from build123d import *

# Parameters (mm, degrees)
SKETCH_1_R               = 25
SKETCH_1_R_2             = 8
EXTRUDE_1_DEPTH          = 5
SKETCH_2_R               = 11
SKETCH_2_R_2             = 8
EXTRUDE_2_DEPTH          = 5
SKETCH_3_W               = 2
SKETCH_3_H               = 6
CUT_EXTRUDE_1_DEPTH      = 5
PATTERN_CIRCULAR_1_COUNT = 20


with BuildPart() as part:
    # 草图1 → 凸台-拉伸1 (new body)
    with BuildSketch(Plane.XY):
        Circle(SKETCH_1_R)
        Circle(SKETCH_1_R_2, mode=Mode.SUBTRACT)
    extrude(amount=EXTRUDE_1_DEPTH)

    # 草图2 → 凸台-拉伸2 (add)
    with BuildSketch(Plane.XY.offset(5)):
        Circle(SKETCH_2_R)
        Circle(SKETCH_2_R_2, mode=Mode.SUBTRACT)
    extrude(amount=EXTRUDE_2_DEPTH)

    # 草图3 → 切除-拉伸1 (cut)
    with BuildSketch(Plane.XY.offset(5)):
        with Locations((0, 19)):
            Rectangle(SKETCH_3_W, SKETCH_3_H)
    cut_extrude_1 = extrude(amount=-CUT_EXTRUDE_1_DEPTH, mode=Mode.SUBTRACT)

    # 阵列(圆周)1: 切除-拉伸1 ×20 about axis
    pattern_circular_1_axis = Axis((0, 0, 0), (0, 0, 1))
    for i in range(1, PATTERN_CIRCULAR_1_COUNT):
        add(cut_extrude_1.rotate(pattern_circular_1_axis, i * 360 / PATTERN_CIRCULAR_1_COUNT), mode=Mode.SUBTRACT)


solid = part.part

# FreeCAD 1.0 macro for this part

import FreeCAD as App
import Part
import Sketcher
from FreeCAD import Vector
Q = App.Units.Quantity

doc = App.newDocument("Part")
params = doc.addObject("Spreadsheet::Sheet", "Params")
for row, (alias, value) in enumerate([
    ("sketch1_diameter", "50 mm"),
    ("sketch1_diameter2", "16 mm"),
    ("pad1_length", "5 mm"),
    ("sketch2_diameter", "22 mm"),
    ("sketch2_diameter2", "16 mm"),
    ("pad2_length", "5 mm"),
    ("sketch3_width", "2 mm"),
    ("sketch3_height", "6 mm"),
    ("pocket1_length", "5 mm"),
], start=1):
    params.set(f"A{row}", alias)
    params.set(f"B{row}", "=" + value)
    params.setAlias(f"B{row}", alias)

body = doc.addObject("PartDesign::Body", "Body")

# Sketch on XY plane
sketch1 = body.newObject("Sketcher::SketchObject", "Sketch")
sketch1.AttachmentSupport = (doc.getObject("XY_Plane"), [""])
sketch1.MapMode = "FlatFace"
sketch1.addGeometry(Part.Circle(Vector(0, 0, 0), Vector(0, 0, 1), 25), False)
sketch1.addGeometry(Part.Circle(Vector(0, 0, 0), Vector(0, 0, 1), 8), False)
sketch1.addConstraint(Sketcher.Constraint("Coincident", 0, 3, -1, 1))
sketch1.addConstraint(Sketcher.Constraint("Coincident", 1, 3, -1, 1))
sketch1.addConstraint(Sketcher.Constraint("Diameter", 0, Q("50 mm")))
sketch1.addConstraint(Sketcher.Constraint("Diameter", 1, Q("16 mm")))
sketch1.setExpression("Constraints[2]", "Params.sketch1_diameter")
sketch1.setExpression("Constraints[3]", "Params.sketch1_diameter2")
pad1 = body.newObject("PartDesign::Pad", "Pad")
pad1.Profile = sketch1
pad1.setExpression("Length", "Params.pad1_length")

# Sketch on XY plane
sketch2 = body.newObject("Sketcher::SketchObject", "Sketch001")
sketch2.AttachmentSupport = (doc.getObject("XY_Plane"), [""])
sketch2.MapMode = "FlatFace"
sketch2.AttachmentOffset = App.Placement(Vector(0, 0, 5), App.Rotation())
sketch2.addGeometry(Part.Circle(Vector(0, 0, 0), Vector(0, 0, 1), 11), False)
sketch2.addGeometry(Part.Circle(Vector(0, 0, 0), Vector(0, 0, 1), 8), False)
sketch2.addConstraint(Sketcher.Constraint("Coincident", 0, 3, -1, 1))
sketch2.addConstraint(Sketcher.Constraint("Coincident", 1, 3, -1, 1))
sketch2.addConstraint(Sketcher.Constraint("Diameter", 0, Q("22 mm")))
sketch2.addConstraint(Sketcher.Constraint("Diameter", 1, Q("16 mm")))
sketch2.setExpression("Constraints[2]", "Params.sketch2_diameter")
sketch2.setExpression("Constraints[3]", "Params.sketch2_diameter2")
pad2 = body.newObject("PartDesign::Pad", "Pad001")
pad2.Profile = sketch2
pad2.setExpression("Length", "Params.pad2_length")

# Sketch on XY plane
sketch3 = body.newObject("Sketcher::SketchObject", "Sketch002")
sketch3.AttachmentSupport = (doc.getObject("XY_Plane"), [""])
sketch3.MapMode = "FlatFace"
sketch3.AttachmentOffset = App.Placement(Vector(0, 0, 5), App.Rotation())
sketch3.addGeometry(Part.LineSegment(Vector(-1, 22, 0), Vector(-1, 16, 0)), False)
sketch3.addGeometry(Part.LineSegment(Vector(-1, 16, 0), Vector(1, 16, 0)), False)
sketch3.addGeometry(Part.LineSegment(Vector(1, 16, 0), Vector(1, 22, 0)), False)
sketch3.addGeometry(Part.LineSegment(Vector(1, 22, 0), Vector(-1, 22, 0)), False)
sketch3.addConstraint(Sketcher.Constraint("Coincident", 0, 2, 1, 1))
sketch3.addConstraint(Sketcher.Constraint("Coincident", 1, 2, 2, 1))
sketch3.addConstraint(Sketcher.Constraint("Coincident", 2, 2, 3, 1))
sketch3.addConstraint(Sketcher.Constraint("Coincident", 3, 2, 0, 1))
sketch3.addConstraint(Sketcher.Constraint("Vertical", 0))
sketch3.addConstraint(Sketcher.Constraint("Horizontal", 1))
sketch3.addConstraint(Sketcher.Constraint("Vertical", 2))
sketch3.addConstraint(Sketcher.Constraint("Horizontal", 3))
sketch3.addConstraint(Sketcher.Constraint("DistanceX", 1, 1, 1, 2, Q("2 mm")))
sketch3.addConstraint(Sketcher.Constraint("DistanceY", 0, 2, 0, 1, Q("6 mm")))
sketch3.addConstraint(Sketcher.Constraint("DistanceX", 0, 2, -1, 1, Q("1 mm")))
sketch3.addConstraint(Sketcher.Constraint("DistanceY", -1, 1, 0, 2, Q("16 mm")))
sketch3.setExpression("Constraints[8]", "Params.sketch3_width")
sketch3.setExpression("Constraints[9]", "Params.sketch3_height")
pocket1 = body.newObject("PartDesign::Pocket", "Pocket")
pocket1.Profile = sketch3
pocket1.setExpression("Length", "Params.pocket1_length")
doc.recompute()

polarpattern = body.newObject("PartDesign::PolarPattern", "PolarPattern")
polarpattern.Originals = [pocket1]
polarpattern.Axis = (doc.getObject("Z_Axis"), [""])
polarpattern.Angle = 360
polarpattern.Occurrences = 20
body.Tip = polarpattern

doc.recompute()
